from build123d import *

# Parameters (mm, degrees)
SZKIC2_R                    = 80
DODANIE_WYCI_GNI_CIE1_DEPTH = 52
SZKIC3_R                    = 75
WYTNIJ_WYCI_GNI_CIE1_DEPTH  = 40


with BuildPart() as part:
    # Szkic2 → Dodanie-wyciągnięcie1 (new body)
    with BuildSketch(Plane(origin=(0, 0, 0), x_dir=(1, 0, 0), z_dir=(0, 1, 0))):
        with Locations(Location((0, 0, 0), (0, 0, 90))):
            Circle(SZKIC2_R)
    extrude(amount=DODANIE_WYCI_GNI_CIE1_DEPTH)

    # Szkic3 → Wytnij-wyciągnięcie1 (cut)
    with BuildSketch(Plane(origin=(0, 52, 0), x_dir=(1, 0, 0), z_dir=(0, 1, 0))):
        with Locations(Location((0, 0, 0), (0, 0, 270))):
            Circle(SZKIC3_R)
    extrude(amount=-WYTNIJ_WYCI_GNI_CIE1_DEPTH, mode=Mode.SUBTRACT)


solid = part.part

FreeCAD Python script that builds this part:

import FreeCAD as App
import Part
import Sketcher
from FreeCAD import Vector

doc = App.newDocument("Part")
body = doc.addObject("PartDesign::Body", "Body")

sketch1 = doc.addObject("Sketcher::SketchObject", "Sketch")
body.addObject(sketch1)
sketch1.AttachmentSupport = (doc.XZ_Plane, [""])
sketch1.MapMode = "FlatFace"
sketch1.addGeometry(Part.Circle(Vector(0, 0, 0), Vector(0, 0, 1), 80), False)
sketch1.addConstraint([
    Sketcher.Constraint("Coincident", 0, 3, -1, 1),
    Sketcher.Constraint("Diameter", 0, 160.0),
])
pad1 = doc.addObject("PartDesign::Pad", "Pad")
body.addObject(pad1)
pad1.Profile = sketch1
pad1.Length = 52
pad1.Reversed = True

sketch2 = doc.addObject("Sketcher::SketchObject", "Sketch001")
body.addObject(sketch2)
sketch2.AttachmentSupport = (doc.XZ_Plane, [""])
sketch2.MapMode = "FlatFace"
sketch2.AttachmentOffset = App.Placement(Vector(0, 0, -52), App.Rotation())
sketch2.addGeometry(Part.Circle(Vector(0, 0, 0), Vector(0, 0, 1), 75), False)
sketch2.addConstraint([
    Sketcher.Constraint("Coincident", 0, 3, -1, 1),
    Sketcher.Constraint("Diameter", 0, 150.0),
])
pocket1 = doc.addObject("PartDesign::Pocket", "Pocket")
body.addObject(pocket1)
pocket1.Profile = sketch2
pocket1.Length = 40
pocket1.Reversed = True

doc.recompute()
